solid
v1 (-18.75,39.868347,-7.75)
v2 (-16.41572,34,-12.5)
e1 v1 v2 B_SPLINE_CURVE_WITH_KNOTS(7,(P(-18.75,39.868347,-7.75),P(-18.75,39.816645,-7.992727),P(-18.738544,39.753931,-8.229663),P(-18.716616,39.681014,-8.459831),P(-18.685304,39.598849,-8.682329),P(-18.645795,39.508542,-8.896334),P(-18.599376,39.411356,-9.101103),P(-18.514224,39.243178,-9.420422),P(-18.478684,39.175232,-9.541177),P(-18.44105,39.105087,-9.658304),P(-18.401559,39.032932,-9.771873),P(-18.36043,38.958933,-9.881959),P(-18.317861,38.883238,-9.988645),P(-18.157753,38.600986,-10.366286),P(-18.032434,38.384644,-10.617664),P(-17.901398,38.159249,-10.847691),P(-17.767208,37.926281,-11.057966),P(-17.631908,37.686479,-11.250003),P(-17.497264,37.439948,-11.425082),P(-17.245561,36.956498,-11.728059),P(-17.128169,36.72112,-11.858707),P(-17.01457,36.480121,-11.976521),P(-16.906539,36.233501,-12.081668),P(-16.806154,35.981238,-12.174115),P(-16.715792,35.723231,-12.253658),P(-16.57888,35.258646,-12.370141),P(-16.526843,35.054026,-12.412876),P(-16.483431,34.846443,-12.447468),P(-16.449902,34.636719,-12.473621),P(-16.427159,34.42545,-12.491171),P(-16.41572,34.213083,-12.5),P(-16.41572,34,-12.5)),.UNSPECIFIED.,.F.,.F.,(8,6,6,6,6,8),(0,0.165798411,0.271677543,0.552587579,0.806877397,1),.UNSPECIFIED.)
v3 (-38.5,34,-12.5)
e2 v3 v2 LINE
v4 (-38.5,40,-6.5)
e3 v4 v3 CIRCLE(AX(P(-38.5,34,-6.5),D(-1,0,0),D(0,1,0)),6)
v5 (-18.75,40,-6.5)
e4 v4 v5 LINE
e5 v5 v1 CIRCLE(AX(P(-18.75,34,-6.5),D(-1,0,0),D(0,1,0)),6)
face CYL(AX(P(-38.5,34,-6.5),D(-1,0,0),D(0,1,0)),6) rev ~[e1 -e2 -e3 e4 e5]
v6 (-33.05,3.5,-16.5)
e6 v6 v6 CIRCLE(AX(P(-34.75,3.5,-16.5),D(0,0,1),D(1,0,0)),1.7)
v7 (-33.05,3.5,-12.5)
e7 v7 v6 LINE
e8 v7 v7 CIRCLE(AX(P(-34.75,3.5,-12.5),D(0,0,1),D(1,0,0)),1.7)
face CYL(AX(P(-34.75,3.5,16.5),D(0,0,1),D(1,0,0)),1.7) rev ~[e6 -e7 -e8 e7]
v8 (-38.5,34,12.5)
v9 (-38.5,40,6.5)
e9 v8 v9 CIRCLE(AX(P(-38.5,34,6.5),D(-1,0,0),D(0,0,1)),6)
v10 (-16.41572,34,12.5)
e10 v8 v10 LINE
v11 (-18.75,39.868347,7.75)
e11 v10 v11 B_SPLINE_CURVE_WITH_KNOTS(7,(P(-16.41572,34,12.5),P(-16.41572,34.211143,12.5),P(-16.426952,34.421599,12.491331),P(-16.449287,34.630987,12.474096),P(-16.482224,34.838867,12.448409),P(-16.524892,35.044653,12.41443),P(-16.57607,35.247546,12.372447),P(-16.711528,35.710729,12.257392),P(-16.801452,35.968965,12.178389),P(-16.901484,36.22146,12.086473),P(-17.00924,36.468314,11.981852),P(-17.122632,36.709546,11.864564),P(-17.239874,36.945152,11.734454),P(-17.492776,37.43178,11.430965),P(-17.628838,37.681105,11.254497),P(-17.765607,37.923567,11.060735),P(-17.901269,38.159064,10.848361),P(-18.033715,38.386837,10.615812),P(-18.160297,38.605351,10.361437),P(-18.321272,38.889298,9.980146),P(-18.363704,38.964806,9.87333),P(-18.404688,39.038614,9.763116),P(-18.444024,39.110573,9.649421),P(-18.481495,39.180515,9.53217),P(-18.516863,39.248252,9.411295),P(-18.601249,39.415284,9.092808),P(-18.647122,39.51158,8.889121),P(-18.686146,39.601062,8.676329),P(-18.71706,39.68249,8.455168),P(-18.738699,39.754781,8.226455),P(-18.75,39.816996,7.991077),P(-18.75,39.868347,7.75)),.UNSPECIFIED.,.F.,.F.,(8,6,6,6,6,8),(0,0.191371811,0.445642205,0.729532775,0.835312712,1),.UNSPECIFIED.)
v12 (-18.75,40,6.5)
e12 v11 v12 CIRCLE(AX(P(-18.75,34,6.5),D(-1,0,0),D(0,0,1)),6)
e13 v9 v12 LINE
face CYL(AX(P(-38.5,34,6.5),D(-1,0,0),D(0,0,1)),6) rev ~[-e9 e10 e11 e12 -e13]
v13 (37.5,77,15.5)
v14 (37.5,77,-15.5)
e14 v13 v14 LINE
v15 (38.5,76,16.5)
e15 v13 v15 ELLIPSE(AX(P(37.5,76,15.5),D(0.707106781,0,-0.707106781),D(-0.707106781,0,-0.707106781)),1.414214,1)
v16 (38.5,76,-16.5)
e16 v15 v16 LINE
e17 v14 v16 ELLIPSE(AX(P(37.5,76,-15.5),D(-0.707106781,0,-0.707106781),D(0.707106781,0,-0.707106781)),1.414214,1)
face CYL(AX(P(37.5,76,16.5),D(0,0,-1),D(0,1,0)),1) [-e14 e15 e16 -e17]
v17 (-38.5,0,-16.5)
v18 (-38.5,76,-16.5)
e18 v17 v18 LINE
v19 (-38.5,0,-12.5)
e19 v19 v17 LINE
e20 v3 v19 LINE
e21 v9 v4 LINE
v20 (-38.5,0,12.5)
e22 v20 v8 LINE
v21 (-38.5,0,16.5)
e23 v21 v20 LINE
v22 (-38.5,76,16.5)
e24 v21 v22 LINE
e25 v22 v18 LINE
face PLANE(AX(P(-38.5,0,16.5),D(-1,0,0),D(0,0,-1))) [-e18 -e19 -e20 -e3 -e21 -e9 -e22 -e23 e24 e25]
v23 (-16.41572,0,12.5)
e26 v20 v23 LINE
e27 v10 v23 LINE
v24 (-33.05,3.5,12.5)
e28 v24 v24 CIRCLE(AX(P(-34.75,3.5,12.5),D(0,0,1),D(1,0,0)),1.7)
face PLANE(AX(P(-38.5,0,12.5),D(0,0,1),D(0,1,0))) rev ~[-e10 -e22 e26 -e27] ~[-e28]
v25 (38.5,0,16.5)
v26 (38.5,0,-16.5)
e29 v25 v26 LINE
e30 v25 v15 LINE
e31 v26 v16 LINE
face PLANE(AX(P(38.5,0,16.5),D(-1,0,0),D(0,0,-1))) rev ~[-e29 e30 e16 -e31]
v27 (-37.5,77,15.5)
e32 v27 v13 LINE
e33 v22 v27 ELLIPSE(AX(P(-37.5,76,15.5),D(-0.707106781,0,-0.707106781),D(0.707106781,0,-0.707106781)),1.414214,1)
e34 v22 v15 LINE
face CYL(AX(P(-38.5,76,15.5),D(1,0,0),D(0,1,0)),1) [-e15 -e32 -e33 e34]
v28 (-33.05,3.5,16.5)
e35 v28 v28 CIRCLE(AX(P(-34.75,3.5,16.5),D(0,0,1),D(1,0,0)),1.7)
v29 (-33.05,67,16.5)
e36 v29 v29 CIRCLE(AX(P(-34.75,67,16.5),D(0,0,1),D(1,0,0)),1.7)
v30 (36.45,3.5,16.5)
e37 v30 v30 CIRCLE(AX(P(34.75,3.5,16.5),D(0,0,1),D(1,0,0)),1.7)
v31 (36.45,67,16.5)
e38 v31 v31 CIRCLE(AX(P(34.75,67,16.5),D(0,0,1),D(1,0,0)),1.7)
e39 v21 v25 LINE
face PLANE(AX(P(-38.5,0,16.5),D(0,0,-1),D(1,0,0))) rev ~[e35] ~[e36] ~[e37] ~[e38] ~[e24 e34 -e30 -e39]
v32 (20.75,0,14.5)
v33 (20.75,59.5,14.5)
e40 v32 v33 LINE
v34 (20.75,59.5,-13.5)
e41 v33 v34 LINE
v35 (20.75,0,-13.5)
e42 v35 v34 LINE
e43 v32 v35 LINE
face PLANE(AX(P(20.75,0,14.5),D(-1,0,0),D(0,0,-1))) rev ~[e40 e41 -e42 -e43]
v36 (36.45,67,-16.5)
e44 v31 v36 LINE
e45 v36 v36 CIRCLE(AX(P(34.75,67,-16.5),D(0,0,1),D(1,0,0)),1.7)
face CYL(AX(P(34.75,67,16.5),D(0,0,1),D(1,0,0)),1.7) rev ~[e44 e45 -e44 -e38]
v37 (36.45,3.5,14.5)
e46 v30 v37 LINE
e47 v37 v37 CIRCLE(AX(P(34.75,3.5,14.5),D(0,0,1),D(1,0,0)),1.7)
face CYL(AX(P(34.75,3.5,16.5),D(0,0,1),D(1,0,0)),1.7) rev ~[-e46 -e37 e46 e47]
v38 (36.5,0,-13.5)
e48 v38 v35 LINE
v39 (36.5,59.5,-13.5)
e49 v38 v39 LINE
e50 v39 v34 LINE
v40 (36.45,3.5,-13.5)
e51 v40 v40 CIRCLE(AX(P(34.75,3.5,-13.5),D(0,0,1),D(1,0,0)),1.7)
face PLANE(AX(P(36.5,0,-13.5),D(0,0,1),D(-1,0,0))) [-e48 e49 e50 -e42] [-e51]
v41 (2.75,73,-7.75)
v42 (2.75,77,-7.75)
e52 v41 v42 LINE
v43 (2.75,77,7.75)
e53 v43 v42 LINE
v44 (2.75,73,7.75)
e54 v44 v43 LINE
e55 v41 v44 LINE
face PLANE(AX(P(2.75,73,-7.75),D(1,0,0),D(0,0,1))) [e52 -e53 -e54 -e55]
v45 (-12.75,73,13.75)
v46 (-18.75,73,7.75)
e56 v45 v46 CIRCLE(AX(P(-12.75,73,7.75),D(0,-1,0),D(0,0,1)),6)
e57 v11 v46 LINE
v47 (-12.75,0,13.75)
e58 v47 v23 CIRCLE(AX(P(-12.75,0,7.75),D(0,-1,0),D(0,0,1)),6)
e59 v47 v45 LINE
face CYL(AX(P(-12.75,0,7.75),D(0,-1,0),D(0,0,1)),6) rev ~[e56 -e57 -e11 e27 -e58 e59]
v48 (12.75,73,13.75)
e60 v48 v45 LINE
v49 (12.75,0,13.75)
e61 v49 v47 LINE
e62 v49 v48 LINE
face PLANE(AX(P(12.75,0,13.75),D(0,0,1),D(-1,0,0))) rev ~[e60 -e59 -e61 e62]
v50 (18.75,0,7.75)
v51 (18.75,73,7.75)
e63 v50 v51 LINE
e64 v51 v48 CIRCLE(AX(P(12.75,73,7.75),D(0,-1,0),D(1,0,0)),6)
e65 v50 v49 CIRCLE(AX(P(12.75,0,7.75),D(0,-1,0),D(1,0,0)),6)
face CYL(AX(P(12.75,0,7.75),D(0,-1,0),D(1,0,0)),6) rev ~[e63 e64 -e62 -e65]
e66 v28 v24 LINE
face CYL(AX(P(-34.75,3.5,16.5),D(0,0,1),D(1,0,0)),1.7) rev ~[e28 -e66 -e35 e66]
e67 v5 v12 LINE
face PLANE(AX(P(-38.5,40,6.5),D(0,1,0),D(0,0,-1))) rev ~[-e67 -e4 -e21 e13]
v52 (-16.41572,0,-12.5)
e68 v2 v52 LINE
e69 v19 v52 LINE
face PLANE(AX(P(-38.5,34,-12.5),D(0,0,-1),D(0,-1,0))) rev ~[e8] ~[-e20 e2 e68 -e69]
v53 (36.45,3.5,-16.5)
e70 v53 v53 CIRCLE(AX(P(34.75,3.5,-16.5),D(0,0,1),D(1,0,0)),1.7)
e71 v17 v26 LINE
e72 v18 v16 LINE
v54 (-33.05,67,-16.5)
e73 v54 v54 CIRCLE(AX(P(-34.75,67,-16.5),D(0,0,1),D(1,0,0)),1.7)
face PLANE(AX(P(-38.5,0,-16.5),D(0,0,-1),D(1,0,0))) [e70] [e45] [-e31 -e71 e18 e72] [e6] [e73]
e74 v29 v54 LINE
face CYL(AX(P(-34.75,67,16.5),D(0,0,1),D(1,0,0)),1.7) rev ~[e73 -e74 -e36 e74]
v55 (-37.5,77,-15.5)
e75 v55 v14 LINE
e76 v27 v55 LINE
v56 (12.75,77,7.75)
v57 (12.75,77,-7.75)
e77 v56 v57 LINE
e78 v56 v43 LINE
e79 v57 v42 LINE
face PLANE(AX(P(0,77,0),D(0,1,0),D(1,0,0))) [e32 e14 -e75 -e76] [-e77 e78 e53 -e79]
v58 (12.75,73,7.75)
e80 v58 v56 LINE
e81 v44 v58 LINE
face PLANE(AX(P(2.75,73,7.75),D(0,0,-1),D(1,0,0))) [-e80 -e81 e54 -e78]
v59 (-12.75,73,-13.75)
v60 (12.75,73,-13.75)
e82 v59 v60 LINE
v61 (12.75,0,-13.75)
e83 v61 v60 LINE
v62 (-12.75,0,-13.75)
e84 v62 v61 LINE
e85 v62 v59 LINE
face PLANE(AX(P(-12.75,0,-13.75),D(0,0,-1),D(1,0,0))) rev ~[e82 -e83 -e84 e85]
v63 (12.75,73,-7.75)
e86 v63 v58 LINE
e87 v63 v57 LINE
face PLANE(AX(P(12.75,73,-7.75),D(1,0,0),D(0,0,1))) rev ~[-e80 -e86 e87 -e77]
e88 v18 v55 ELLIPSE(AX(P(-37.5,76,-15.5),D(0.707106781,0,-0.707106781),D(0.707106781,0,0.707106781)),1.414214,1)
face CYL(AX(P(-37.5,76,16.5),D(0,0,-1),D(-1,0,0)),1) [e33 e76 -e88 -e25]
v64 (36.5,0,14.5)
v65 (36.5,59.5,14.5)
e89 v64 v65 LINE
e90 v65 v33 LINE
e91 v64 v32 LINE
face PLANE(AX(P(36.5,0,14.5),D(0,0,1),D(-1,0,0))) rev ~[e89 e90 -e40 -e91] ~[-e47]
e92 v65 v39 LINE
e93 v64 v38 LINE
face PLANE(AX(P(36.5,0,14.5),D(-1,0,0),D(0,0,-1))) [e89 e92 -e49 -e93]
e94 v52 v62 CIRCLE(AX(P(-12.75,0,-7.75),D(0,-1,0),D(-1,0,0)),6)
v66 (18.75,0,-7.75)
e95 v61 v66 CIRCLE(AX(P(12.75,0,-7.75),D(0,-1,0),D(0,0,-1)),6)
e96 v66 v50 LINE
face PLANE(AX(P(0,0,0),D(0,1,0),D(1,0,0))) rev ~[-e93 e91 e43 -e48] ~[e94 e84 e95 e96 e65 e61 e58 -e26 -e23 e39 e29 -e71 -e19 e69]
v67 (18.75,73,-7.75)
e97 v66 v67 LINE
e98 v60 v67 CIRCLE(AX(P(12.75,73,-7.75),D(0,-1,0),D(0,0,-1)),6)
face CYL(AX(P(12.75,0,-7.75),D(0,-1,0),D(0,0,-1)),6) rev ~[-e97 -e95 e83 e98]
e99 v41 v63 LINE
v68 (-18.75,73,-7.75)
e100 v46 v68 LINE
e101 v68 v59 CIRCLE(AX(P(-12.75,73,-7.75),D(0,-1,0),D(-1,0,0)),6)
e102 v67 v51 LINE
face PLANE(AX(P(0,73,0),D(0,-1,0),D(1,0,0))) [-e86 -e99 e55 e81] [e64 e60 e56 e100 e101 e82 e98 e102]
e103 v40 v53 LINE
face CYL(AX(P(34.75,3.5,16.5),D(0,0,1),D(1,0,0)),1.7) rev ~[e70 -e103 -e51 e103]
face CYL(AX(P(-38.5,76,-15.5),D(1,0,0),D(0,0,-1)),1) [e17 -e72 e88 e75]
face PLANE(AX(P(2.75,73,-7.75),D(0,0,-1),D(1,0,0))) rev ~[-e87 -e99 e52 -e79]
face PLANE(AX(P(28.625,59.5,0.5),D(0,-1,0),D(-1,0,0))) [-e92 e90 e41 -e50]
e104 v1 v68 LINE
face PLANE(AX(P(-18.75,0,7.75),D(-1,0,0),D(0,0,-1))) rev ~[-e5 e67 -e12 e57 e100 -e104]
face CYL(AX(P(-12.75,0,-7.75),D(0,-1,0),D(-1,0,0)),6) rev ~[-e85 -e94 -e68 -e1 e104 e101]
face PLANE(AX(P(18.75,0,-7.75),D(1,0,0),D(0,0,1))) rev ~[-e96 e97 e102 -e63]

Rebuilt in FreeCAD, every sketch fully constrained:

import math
import FreeCAD as App
import Part
import Sketcher
from FreeCAD import Vector
Q = App.Units.Quantity


def edges_at(feature, points):
    """Names of the edges that pass closest to the given points."""
    edges = feature.Shape.Edges
    near = lambda p: min(range(len(edges)), key=lambda i: edges[i].distToShape(Part.Vertex(*p))[0])
    return sorted({f"Edge{near(p) + 1}" for p in points})


def add_polygon(sketch, points):
    """Adds a closed chain of lines whose ends are joined by coincident constraints."""
    first, n = sketch.GeometryCount, len(points)
    for a, b in zip(points, points[1:] + points[:1]):
        sketch.addGeometry(Part.LineSegment(App.Vector(*a, 0), App.Vector(*b, 0)), False)
    for i in range(n):
        sketch.addConstraint(Sketcher.Constraint("Coincident", first + i, 2, first + (i + 1) % n, 1))

doc = App.newDocument("Part")
params = doc.addObject("Spreadsheet::Sheet", "Params")
for row, (alias, value) in enumerate([
    ("sketch1_width", "77 mm"),
    ("sketch1_height", "33 mm"),
    ("pad1_length", "77 mm"),
    ("sketch2_radius", "6 mm"),
    ("sketch2_width", "25.5 mm"),
    ("sketch2_height", "15.5 mm"),
    ("pocket1_length", "73 mm"),
    ("sketch3_diameter", "3.4 mm"),
    ("sketch4_radius", "6 mm"),
    ("sketch4_width", "34 mm"),
    ("sketch4_height", "13 mm"),
    ("pocket3_length", "22.08428 mm"),
    ("sketch5_width", "10 mm"),
    ("sketch5_height", "15.5 mm"),
    ("sketch6_height", "28 mm"),
    ("sketch6_width", "15.75 mm"),
    ("pocket5_length", "59.5 mm"),
    ("fillet_radius", "1 mm"),
], start=1):
    params.set(f"A{row}", alias)
    params.set(f"B{row}", "=" + value)
    params.setAlias(f"B{row}", alias)

body = doc.addObject("PartDesign::Body", "Body")

sketch1 = body.newObject("Sketcher::SketchObject", "Sketch")
sketch1.AttachmentSupport = (doc.getObject("XZ_Plane"), [""])
sketch1.MapMode = "FlatFace"
add_polygon(sketch1, [(-38.5, -16.5), (-38.5, 16.5), (38.5, 16.5), (38.5, -16.5)])
sketch1.addConstraint([
    Sketcher.Constraint("Vertical", 0),
    Sketcher.Constraint("Horizontal", 1),
    Sketcher.Constraint("Vertical", 2),
    Sketcher.Constraint("Horizontal", 3),
    Sketcher.Constraint("Symmetric", 0, 2, 2, 2, -1, 1),
    Sketcher.Constraint("DistanceX", 1, 1, 1, 2, Q("77 mm")),
    Sketcher.Constraint("DistanceY", 0, 1, 0, 2, Q("33 mm")),
])
sketch1.setExpression("Constraints[9]", "Params.sketch1_width")
sketch1.setExpression("Constraints[10]", "Params.sketch1_height")
pad1 = body.newObject("PartDesign::Pad", "Pad")
pad1.Profile = sketch1
pad1.setExpression("Length", "Params.pad1_length")
pad1.Reversed = True

sketch2 = body.newObject("Sketcher::SketchObject", "Sketch001")
sketch2.AttachmentSupport = (doc.getObject("XZ_Plane"), [""])
sketch2.MapMode = "FlatFace"
sketch2.addGeometry([
    Part.LineSegment(Vector(12.75, 13.75, 0), Vector(-12.75, 13.75, 0)),
    Part.ArcOfCircle(Part.Circle(Vector(-12.75, 7.75, 0), Vector(0, 0, 1), 6), math.radians(90), math.radians(180)),
    Part.LineSegment(Vector(-18.75, 7.75, 0), Vector(-18.75, -7.75, 0)),
    Part.ArcOfCircle(Part.Circle(Vector(-12.75, -7.75, 0), Vector(0, 0, 1), 6), math.radians(180), math.radians(270)),
    Part.LineSegment(Vector(-12.75, -13.75, 0), Vector(12.75, -13.75, 0)),
    Part.ArcOfCircle(Part.Circle(Vector(12.75, -7.75, 0), Vector(0, 0, 1), 6), math.radians(-90), math.radians(0)),
    Part.LineSegment(Vector(18.75, -7.75, 0), Vector(18.75, 7.75, 0)),
    Part.ArcOfCircle(Part.Circle(Vector(12.75, 7.75, 0), Vector(0, 0, 1), 6), math.radians(0), math.radians(90)),
], False)
sketch2.addConstraint([
    Sketcher.Constraint("Tangent", 0, 2, 1, 1),
    Sketcher.Constraint("Tangent", 1, 2, 2, 1),
    Sketcher.Constraint("Tangent", 2, 2, 3, 1),
    Sketcher.Constraint("Tangent", 3, 2, 4, 1),
    Sketcher.Constraint("Tangent", 4, 2, 5, 1),
    Sketcher.Constraint("Tangent", 5, 2, 6, 1),
    Sketcher.Constraint("Tangent", 6, 2, 7, 1),
    Sketcher.Constraint("Tangent", 7, 2, 0, 1),
    Sketcher.Constraint("Horizontal", 0),
    Sketcher.Constraint("Vertical", 2),
    Sketcher.Constraint("Horizontal", 4),
    Sketcher.Constraint("Vertical", 6),
    Sketcher.Constraint("Equal", 1, 3),
    Sketcher.Constraint("Equal", 3, 5),
    Sketcher.Constraint("Equal", 5, 7),
    Sketcher.Constraint("Symmetric", 1, 3, 5, 3, -1, 1),
    Sketcher.Constraint("Radius", 1, Q("6 mm")),
    Sketcher.Constraint("DistanceX", 0, 2, 0, 1, Q("25.5 mm")),
    Sketcher.Constraint("DistanceY", 2, 2, 2, 1, Q("15.5 mm")),
])
sketch2.setExpression("Constraints[16]", "Params.sketch2_radius")
sketch2.setExpression("Constraints[17]", "Params.sketch2_width")
sketch2.setExpression("Constraints[18]", "Params.sketch2_height")
pocket1 = body.newObject("PartDesign::Pocket", "Pocket")
pocket1.Profile = sketch2
pocket1.setExpression("Length", "Params.pocket1_length")

sketch3 = body.newObject("Sketcher::SketchObject", "Sketch002")
sketch3.AttachmentSupport = (doc.getObject("XY_Plane"), [""])
sketch3.MapMode = "FlatFace"
sketch3.AttachmentOffset = App.Placement(Vector(0, 0, 16.5), App.Rotation())
sketch3.addGeometry([
    Part.Circle(Vector(34.75, 3.5, 0), Vector(0, 0, 1), 1.7),
    Part.Circle(Vector(34.75, 67, 0), Vector(0, 0, 1), 1.7),
    Part.Circle(Vector(-34.75, 67, 0), Vector(0, 0, 1), 1.7),
    Part.Circle(Vector(-34.75, 3.5, 0), Vector(0, 0, 1), 1.7),
], False)
sketch3.addConstraint([
    Sketcher.Constraint("Equal", 0, 1),
    Sketcher.Constraint("Equal", 1, 2),
    Sketcher.Constraint("Equal", 2, 3),
    Sketcher.Constraint("Symmetric", 1, 3, 2, 3, -2),
    Sketcher.Constraint("Symmetric", 0, 3, 3, 3, -2),
    Sketcher.Constraint("Vertical", 0, 3, 1, 3),
    Sketcher.Constraint("Diameter", 0, Q("3.4 mm")),
    Sketcher.Constraint("DistanceY", -1, 1, 1, 3, Q("67 mm")),
    Sketcher.Constraint("DistanceY", -1, 1, 0, 3, Q("3.5 mm")),
    Sketcher.Constraint("DistanceX", 2, 3, 1, 3, Q("69.5 mm")),
])
sketch3.setExpression("Constraints[6]", "Params.sketch3_diameter")
pocket2 = body.newObject("PartDesign::Pocket", "Pocket001")
pocket2.Profile = sketch3
pocket2.Type = "ThroughAll"

sketch4 = body.newObject("Sketcher::SketchObject", "Sketch003")
sketch4.AttachmentSupport = (doc.getObject("YZ_Plane"), [""])
sketch4.MapMode = "FlatFace"
sketch4.AttachmentOffset = App.Placement(Vector(0, 0, -38.5), App.Rotation())
sketch4.addGeometry([
    Part.LineSegment(Vector(40, 6.5, 0), Vector(40, -6.5, 0)),
    Part.ArcOfCircle(Part.Circle(Vector(34, -6.5, 0), Vector(0, 0, 1), 6), math.radians(-90), math.radians(0)),
    Part.LineSegment(Vector(34, -12.5, 0), Vector(0, -12.5, 0)),
    Part.LineSegment(Vector(0, -12.5, 0), Vector(0, 12.5, 0)),
    Part.LineSegment(Vector(0, 12.5, 0), Vector(34, 12.5, 0)),
    Part.ArcOfCircle(Part.Circle(Vector(34, 6.5, 0), Vector(0, 0, 1), 6), math.radians(0), math.radians(90)),
], False)
sketch4.addConstraint([
    Sketcher.Constraint("Tangent", 0, 2, 1, 2),
    Sketcher.Constraint("Tangent", 1, 1, 2, 1),
    Sketcher.Constraint("Coincident", 2, 2, 3, 1),
    Sketcher.Constraint("Coincident", 3, 2, 4, 1),
    Sketcher.Constraint("Tangent", 4, 2, 5, 2),
    Sketcher.Constraint("Tangent", 5, 1, 0, 1),
    Sketcher.Constraint("Vertical", 0),
    Sketcher.Constraint("Horizontal", 2),
    Sketcher.Constraint("Vertical", 3),
    Sketcher.Constraint("Horizontal", 4),
    Sketcher.Constraint("Equal", 1, 5),
    Sketcher.Constraint("Symmetric", 2, 2, 3, 2, -1, 1),
    Sketcher.Constraint("Radius", 1, Q("6 mm")),
    Sketcher.Constraint("DistanceX", 2, 2, 2, 1, Q("34 mm")),
    Sketcher.Constraint("DistanceY", 0, 2, 0, 1, Q("13 mm")),
])
sketch4.setExpression("Constraints[12]", "Params.sketch4_radius")
sketch4.setExpression("Constraints[13]", "Params.sketch4_width")
sketch4.setExpression("Constraints[14]", "Params.sketch4_height")
pocket3 = body.newObject("PartDesign::Pocket", "Pocket002")
pocket3.Profile = sketch4
pocket3.setExpression("Length", "Params.pocket3_length")
pocket3.Reversed = True

sketch5 = body.newObject("Sketcher::SketchObject", "Sketch004")
sketch5.AttachmentSupport = (doc.getObject("XZ_Plane"), [""])
sketch5.MapMode = "FlatFace"
sketch5.AttachmentOffset = App.Placement(Vector(0, 0, -73), App.Rotation())
add_polygon(sketch5, [(2.75, 7.75), (2.75, -7.75), (12.75, -7.75), (12.75, 7.75)])
sketch5.addConstraint([
    Sketcher.Constraint("Vertical", 0),
    Sketcher.Constraint("Horizontal", 1),
    Sketcher.Constraint("Vertical", 2),
    Sketcher.Constraint("Horizontal", 3),
    Sketcher.Constraint("DistanceX", 1, 1, 1, 2, Q("10 mm")),
    Sketcher.Constraint("DistanceY", 0, 2, 0, 1, Q("15.5 mm")),
    Sketcher.Constraint("DistanceX", -1, 1, 0, 2, Q("2.75 mm")),
    Sketcher.Constraint("DistanceY", 0, 2, -1, 1, Q("7.75 mm")),
])
sketch5.setExpression("Constraints[8]", "Params.sketch5_width")
sketch5.setExpression("Constraints[9]", "Params.sketch5_height")
pocket4 = body.newObject("PartDesign::Pocket", "Pocket003")
pocket4.Profile = sketch5
pocket4.Type = "ThroughAll"

sketch6 = body.newObject("Sketcher::SketchObject", "Sketch005")
sketch6.AttachmentSupport = (doc.getObject("XZ_Plane"), [""])
sketch6.MapMode = "FlatFace"
add_polygon(sketch6, [(36.5, -13.5), (36.5, 14.5), (20.75, 14.5), (20.75, -13.5)])
sketch6.addConstraint([
    Sketcher.Constraint("Vertical", 0),
    Sketcher.Constraint("Horizontal", 1),
    Sketcher.Constraint("Vertical", 2),
    Sketcher.Constraint("Horizontal", 3),
    Sketcher.Constraint("DistanceY", 0, 1, 0, 2, Q("28 mm")),
    Sketcher.Constraint("DistanceX", 1, 2, 1, 1, Q("15.75 mm")),
    Sketcher.Constraint("DistanceX", -1, 1, 0, 2, Q("36.5 mm")),
    Sketcher.Constraint("DistanceY", -1, 1, 0, 2, Q("14.5 mm")),
])
sketch6.setExpression("Constraints[8]", "Params.sketch6_height")
sketch6.setExpression("Constraints[9]", "Params.sketch6_width")
pocket5 = body.newObject("PartDesign::Pocket", "Pocket004")
pocket5.Profile = sketch6
pocket5.setExpression("Length", "Params.pocket5_length")
doc.recompute()

fillet = body.newObject("PartDesign::Fillet", "Fillet")
fillet.Base = (pocket5, edges_at(pocket5, [
    (38.5, 77, 0),
    (0, 77, -16.5),
    (-38.5, 77, 0),
    (0, 77, 16.5),
]))
fillet.setExpression("Radius", "Params.fillet_radius")

doc.recompute()
